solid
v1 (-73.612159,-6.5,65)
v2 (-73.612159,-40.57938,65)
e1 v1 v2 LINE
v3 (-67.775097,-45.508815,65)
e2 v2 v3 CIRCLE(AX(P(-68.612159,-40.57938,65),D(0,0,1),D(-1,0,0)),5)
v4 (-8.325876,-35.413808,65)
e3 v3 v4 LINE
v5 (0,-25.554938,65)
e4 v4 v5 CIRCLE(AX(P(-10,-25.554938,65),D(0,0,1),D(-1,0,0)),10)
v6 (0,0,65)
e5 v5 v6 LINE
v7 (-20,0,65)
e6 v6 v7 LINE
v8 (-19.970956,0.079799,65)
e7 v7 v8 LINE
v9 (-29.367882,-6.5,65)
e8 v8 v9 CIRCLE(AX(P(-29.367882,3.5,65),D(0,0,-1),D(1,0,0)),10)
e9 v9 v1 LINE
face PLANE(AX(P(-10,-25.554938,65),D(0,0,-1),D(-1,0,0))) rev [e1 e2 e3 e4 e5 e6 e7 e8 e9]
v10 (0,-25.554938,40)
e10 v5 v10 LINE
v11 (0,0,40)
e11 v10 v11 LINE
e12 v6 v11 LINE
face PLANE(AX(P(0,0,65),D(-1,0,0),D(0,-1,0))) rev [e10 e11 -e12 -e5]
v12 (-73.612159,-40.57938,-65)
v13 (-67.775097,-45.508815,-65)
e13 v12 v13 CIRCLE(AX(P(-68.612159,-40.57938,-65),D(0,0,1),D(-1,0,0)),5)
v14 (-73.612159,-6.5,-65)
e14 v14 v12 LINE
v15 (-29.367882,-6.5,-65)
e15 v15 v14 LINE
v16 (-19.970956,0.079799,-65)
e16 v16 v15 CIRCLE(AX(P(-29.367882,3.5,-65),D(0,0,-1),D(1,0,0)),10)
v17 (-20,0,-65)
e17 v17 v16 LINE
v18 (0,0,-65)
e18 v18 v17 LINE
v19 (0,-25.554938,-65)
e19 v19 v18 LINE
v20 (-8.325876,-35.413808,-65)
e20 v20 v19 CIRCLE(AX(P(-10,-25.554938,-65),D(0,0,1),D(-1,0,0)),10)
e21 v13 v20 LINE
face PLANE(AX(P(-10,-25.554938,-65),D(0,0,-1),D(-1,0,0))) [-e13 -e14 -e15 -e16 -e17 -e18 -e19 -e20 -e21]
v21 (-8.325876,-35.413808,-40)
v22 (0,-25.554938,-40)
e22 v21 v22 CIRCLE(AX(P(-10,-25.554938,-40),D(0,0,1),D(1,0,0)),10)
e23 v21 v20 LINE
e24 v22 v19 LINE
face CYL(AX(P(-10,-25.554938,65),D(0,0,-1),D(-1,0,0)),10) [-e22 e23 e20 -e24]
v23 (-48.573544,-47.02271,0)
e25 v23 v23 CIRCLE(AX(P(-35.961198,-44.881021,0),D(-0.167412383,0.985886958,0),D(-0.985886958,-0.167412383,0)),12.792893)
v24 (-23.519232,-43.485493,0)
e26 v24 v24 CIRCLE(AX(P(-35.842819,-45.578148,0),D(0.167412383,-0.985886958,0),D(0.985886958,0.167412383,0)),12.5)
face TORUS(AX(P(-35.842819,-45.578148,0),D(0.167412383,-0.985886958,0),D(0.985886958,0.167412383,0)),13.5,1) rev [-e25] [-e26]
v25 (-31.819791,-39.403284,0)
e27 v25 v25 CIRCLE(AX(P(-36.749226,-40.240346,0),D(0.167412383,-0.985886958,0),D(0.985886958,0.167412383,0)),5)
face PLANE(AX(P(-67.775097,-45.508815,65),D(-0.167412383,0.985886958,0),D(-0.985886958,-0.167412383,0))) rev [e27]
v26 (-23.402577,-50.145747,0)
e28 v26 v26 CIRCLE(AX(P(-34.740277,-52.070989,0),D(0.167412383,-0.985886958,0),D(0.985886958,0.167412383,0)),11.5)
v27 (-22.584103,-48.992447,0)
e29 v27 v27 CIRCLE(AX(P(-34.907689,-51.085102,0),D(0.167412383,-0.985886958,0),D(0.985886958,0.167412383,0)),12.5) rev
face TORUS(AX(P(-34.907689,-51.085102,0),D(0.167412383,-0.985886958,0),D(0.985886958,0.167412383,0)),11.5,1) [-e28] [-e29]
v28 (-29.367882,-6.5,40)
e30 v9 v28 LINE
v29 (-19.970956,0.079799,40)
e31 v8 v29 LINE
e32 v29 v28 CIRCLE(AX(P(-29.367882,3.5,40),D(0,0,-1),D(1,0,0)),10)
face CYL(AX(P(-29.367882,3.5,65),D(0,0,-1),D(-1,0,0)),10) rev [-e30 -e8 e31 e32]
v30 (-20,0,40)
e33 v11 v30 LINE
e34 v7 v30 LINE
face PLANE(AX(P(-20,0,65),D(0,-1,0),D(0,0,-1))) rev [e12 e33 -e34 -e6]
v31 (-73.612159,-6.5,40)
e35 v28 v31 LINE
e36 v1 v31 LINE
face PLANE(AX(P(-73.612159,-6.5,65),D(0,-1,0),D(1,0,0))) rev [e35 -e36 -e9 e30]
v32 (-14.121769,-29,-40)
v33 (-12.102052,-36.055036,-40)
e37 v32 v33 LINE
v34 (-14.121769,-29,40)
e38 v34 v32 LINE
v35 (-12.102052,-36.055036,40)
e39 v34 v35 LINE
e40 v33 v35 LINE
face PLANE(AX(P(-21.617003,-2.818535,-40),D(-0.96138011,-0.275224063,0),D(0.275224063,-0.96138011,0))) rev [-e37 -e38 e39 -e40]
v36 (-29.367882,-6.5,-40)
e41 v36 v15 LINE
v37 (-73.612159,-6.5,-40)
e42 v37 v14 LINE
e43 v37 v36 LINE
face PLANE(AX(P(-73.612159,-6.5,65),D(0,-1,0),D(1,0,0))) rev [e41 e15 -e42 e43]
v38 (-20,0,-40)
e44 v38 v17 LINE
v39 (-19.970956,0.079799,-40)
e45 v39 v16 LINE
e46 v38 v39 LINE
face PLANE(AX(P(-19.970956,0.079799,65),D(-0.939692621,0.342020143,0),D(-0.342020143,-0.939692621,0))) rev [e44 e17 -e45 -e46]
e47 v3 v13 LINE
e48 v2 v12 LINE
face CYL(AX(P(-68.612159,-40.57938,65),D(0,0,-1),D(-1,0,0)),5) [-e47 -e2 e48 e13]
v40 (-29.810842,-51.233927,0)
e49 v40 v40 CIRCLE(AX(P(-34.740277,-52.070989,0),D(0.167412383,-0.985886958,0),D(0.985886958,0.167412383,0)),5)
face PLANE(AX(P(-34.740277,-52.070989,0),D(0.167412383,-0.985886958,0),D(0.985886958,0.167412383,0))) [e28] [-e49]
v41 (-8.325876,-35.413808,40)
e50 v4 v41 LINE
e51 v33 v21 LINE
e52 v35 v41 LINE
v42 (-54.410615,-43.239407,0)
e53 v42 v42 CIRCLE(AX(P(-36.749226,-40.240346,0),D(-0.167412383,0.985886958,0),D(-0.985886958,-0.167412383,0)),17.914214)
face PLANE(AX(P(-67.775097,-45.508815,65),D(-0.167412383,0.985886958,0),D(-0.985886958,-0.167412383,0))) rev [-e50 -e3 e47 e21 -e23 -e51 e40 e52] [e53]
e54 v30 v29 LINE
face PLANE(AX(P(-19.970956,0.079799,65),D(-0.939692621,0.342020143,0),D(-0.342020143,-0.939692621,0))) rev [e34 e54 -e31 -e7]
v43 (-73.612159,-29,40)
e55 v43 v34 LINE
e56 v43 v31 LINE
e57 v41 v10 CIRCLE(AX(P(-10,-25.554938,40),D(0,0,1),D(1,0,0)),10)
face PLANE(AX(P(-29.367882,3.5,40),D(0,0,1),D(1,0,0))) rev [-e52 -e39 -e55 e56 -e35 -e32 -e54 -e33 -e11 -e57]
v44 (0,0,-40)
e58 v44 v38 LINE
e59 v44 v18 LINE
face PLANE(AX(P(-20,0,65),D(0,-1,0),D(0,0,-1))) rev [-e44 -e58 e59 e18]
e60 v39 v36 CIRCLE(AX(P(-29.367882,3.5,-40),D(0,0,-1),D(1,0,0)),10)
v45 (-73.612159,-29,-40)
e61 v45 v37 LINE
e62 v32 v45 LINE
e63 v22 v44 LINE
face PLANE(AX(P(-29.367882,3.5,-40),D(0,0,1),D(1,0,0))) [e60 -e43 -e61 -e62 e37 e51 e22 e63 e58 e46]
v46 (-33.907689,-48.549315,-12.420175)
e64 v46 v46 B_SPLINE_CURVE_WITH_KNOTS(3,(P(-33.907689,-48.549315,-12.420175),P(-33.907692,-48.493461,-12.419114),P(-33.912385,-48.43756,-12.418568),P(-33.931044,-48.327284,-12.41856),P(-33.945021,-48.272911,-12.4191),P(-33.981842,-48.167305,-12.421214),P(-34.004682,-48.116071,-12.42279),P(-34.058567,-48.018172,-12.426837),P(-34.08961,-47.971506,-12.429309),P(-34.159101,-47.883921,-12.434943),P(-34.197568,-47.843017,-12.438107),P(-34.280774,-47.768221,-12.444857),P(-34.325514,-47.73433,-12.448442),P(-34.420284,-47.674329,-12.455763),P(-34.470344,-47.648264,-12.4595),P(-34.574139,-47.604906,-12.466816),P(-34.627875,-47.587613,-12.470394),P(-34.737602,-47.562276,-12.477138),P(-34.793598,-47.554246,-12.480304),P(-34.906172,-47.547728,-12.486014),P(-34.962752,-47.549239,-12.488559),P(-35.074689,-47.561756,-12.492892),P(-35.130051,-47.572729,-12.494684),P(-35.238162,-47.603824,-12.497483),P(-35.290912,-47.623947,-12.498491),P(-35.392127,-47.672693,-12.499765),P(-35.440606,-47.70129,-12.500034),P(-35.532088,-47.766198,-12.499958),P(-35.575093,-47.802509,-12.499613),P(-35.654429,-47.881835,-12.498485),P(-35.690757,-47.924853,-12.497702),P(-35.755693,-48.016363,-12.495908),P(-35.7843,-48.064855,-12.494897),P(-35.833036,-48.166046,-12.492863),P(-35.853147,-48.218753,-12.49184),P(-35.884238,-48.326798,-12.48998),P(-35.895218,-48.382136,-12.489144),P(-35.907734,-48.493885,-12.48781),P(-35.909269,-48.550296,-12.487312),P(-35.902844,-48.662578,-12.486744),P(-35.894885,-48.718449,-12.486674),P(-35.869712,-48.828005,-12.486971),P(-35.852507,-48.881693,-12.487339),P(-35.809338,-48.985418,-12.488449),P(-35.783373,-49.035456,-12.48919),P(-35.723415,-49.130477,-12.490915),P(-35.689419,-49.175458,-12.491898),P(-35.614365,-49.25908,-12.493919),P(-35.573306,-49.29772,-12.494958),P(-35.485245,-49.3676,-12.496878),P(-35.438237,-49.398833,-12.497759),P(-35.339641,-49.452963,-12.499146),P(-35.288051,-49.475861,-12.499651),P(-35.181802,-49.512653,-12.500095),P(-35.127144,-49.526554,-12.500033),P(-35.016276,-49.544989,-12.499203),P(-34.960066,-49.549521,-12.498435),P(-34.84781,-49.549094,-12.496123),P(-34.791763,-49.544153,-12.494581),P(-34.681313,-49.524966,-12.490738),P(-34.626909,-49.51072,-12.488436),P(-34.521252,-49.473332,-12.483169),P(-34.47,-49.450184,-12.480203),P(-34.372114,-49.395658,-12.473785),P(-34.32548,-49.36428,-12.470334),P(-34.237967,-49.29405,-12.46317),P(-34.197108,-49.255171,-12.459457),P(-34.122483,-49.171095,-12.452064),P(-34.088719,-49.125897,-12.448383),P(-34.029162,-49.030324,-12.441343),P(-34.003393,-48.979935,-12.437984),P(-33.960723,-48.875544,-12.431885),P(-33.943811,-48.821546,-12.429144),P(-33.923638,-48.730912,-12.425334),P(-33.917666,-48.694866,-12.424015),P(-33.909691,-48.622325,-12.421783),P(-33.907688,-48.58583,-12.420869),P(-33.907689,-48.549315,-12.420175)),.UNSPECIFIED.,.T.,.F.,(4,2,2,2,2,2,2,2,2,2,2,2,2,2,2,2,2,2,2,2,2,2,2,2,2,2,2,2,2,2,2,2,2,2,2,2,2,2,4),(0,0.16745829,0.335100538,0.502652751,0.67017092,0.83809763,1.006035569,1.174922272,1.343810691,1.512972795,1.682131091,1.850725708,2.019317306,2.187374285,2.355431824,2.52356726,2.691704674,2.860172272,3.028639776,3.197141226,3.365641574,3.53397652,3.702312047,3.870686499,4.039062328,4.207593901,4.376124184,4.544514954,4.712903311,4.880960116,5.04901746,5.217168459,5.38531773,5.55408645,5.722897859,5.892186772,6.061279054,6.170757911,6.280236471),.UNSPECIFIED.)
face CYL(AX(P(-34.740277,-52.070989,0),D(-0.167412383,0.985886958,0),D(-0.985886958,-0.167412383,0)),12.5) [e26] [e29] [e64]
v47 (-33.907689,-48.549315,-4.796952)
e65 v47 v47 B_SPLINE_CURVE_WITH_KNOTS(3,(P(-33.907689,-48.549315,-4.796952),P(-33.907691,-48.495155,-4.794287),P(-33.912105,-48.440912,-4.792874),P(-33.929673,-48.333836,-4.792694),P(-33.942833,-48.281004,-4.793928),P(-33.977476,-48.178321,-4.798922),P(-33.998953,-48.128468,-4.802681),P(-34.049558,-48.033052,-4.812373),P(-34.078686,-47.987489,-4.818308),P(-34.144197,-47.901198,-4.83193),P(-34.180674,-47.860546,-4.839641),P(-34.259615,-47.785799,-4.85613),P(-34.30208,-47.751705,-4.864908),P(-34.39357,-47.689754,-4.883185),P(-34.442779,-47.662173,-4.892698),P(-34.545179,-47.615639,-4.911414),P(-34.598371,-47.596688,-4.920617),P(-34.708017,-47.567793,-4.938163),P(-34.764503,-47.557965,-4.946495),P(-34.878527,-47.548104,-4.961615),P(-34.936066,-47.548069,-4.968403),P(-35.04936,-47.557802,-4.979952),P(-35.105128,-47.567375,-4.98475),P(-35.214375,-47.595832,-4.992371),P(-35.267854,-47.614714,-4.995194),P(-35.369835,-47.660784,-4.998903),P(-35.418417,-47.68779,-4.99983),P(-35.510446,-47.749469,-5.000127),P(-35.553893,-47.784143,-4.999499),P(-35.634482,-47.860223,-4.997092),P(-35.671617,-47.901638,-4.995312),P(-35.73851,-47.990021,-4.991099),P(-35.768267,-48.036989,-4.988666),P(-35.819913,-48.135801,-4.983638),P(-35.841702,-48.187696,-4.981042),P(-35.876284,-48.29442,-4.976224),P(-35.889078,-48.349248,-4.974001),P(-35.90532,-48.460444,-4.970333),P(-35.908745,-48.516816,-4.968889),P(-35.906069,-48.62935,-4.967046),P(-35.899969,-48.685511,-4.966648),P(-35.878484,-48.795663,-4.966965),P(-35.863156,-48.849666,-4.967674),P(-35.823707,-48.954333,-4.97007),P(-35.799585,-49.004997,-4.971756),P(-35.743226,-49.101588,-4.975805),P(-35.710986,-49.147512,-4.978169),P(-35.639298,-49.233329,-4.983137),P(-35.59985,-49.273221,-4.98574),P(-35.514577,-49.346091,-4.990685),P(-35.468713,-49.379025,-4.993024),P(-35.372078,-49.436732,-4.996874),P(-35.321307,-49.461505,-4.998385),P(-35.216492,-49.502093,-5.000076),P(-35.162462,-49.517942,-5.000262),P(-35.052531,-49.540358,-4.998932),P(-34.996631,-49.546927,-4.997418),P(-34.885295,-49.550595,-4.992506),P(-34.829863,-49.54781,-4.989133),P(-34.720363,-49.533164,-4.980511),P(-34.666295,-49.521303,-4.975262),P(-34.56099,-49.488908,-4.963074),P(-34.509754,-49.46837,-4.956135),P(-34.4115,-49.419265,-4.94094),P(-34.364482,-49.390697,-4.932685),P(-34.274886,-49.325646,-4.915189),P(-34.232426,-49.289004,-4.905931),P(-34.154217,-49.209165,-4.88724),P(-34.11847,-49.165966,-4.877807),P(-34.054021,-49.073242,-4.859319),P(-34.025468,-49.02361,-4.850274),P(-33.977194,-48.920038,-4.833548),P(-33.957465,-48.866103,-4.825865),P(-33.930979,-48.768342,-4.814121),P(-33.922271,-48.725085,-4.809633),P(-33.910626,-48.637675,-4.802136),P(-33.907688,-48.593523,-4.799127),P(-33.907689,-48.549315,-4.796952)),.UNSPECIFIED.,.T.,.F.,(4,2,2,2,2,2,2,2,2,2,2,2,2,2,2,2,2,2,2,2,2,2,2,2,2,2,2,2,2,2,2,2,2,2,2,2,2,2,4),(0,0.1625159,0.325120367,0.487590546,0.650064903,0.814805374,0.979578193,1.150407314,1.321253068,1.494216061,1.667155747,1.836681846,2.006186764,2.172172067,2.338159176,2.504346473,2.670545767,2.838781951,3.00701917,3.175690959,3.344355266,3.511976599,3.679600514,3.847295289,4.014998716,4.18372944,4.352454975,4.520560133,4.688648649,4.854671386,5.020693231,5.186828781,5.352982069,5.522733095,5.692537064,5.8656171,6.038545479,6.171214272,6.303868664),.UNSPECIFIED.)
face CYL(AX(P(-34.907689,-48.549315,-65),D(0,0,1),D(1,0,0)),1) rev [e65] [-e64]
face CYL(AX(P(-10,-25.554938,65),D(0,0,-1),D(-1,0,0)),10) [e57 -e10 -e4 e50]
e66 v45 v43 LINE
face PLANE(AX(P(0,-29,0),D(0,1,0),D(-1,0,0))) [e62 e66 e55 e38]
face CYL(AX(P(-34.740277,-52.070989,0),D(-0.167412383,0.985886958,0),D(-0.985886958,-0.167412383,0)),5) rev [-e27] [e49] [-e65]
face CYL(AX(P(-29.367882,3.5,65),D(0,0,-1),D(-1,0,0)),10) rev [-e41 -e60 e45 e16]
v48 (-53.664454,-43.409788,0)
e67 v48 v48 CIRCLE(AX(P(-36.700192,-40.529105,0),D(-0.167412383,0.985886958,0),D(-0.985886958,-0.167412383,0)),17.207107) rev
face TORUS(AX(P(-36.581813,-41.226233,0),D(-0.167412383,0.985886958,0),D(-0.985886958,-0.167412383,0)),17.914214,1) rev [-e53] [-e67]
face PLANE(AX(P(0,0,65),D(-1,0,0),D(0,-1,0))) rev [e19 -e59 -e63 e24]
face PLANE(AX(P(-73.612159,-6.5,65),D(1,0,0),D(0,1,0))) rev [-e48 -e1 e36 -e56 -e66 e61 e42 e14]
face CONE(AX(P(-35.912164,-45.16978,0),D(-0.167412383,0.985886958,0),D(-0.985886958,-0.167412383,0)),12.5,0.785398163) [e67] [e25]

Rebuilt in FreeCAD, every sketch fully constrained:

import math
import FreeCAD as App
import Part
import Sketcher

V = App.Vector
Q = App.Units.Quantity


def edges_at(feature, points):
    """Names of the edges that pass closest to the given points."""
    edges = feature.Shape.Edges
    near = lambda p: min(range(len(edges)), key=lambda i: edges[i].distToShape(Part.Vertex(*p))[0])
    return sorted({f"Edge{near(p) + 1}" for p in points})

doc = App.newDocument("Part")
body = doc.addObject("PartDesign::Body", "Body")

# Sketch on XY plane
sketch1 = doc.addObject("Sketcher::SketchObject", "Sketch")
body.addObject(sketch1)
sketch1.AttachmentSupport = (doc.XY_Plane, [""])
sketch1.MapMode = "FlatFace"
sketch1.addGeometry(Part.LineSegment(V(0, -25.55, 0), V(0, 0, 0)), False)
sketch1.addGeometry(Part.LineSegment(V(0, 0, 0), V(-20, 0, 0)), False)
sketch1.addGeometry(Part.LineSegment(V(-20, 0, 0), V(-19.97, 0.08, 0)), False)
sketch1.addGeometry(Part.ArcOfCircle(Part.Circle(V(-29.37, 3.5, 0), V(0, 0, 1), 10), math.radians(-90), math.radians(-20)), False)
sketch1.addGeometry(Part.LineSegment(V(-29.37, -6.5, 0), V(-73.61, -6.5, 0)), False)
sketch1.addGeometry(Part.LineSegment(V(-73.61, -6.5, 0), V(-73.61, -40.58, 0)), False)
sketch1.addGeometry(Part.ArcOfCircle(Part.Circle(V(-68.61, -40.58, 0), V(0, 0, 1), 5), math.radians(-180), math.radians(-80)), False)
sketch1.addGeometry(Part.LineSegment(V(-67.78, -45.51, 0), V(-8.33, -35.41, 0)), False)
sketch1.addGeometry(Part.ArcOfCircle(Part.Circle(V(-10, -25.55, 0), V(0, 0, 1), 10), math.radians(-80), math.radians(0)), False)
sketch1.addConstraint(Sketcher.Constraint("Coincident", 0, 2, 1, 1))
sketch1.addConstraint(Sketcher.Constraint("Coincident", 1, 2, 2, 1))
sketch1.addConstraint(Sketcher.Constraint("Tangent", 2, 2, 3, 2))
sketch1.addConstraint(Sketcher.Constraint("Tangent", 3, 1, 4, 1))
sketch1.addConstraint(Sketcher.Constraint("Coincident", 4, 2, 5, 1))
sketch1.addConstraint(Sketcher.Constraint("Tangent", 5, 2, 6, 1))
sketch1.addConstraint(Sketcher.Constraint("Tangent", 6, 2, 7, 1))
sketch1.addConstraint(Sketcher.Constraint("Tangent", 7, 2, 8, 1))
sketch1.addConstraint(Sketcher.Constraint("Tangent", 8, 2, 0, 1))
sketch1.addConstraint(Sketcher.Constraint("Vertical", 0))
sketch1.addConstraint(Sketcher.Constraint("Horizontal", 1))
sketch1.addConstraint(Sketcher.Constraint("Horizontal", 4))
sketch1.addConstraint(Sketcher.Constraint("Vertical", 5))
sketch1.addConstraint(Sketcher.Constraint("Coincident", 0, 2, -1, 1))
sketch1.addConstraint(Sketcher.Constraint("Equal", 3, 8))
sketch1.addConstraint(Sketcher.Constraint("Radius", 3, Q("10 mm")))
sketch1.addConstraint(Sketcher.Constraint("Radius", 6, Q("5 mm")))
sketch1.addConstraint(Sketcher.Constraint("DistanceX", 1, 2, 1, 1, Q("20 mm")))
sketch1.addConstraint(Sketcher.Constraint("Angle", 2, Q("70 deg")))
sketch1.addConstraint(Sketcher.Constraint("DistanceY", -1, 1, 3, 3, Q("3.5 mm")))
sketch1.addConstraint(Sketcher.Constraint("DistanceY", 0, 1, 0, 2, Q("25.554938 mm")))
sketch1.addConstraint(Sketcher.Constraint("DistanceY", 5, 2, 5, 1, Q("34.07938 mm")))
sketch1.addConstraint(Sketcher.Constraint("Distance", 7, Q("60.300241 mm")))
pad1 = doc.addObject("PartDesign::Pad", "Pad")
body.addObject(pad1)
pad1.Profile = sketch1
pad1.Length = 130
pad1.Midplane = True

# Sketch on XY plane
sketch2 = doc.addObject("Sketcher::SketchObject", "Sketch001")
body.addObject(sketch2)
sketch2.AttachmentSupport = (doc.XY_Plane, [""])
sketch2.MapMode = "FlatFace"
sketch2.addGeometry(Part.LineSegment(V(-20, 0, 0), V(-19.97, 0.08, 0)), False)
sketch2.addGeometry(Part.ArcOfCircle(Part.Circle(V(-29.37, 3.5, 0), V(0, 0, 1), 10), math.radians(-39.19), math.radians(-20)), False)
sketch2.addGeometry(Part.LineSegment(V(-21.62, -2.82, 0), V(-12.1, -36.06, 0)), False)
sketch2.addGeometry(Part.LineSegment(V(-12.1, -36.06, 0), V(-8.33, -35.41, 0)), False)
sketch2.addGeometry(Part.ArcOfCircle(Part.Circle(V(-10, -25.55, 0), V(0, 0, 1), 10), math.radians(-80), math.radians(0)), False)
sketch2.addGeometry(Part.LineSegment(V(0, -25.55, 0), V(0, 0, 0)), False)
sketch2.addGeometry(Part.LineSegment(V(0, 0, 0), V(-20, 0, 0)), False)
sketch2.addConstraint(Sketcher.Constraint("Tangent", 0, 2, 1, 2))
sketch2.addConstraint(Sketcher.Constraint("Coincident", 1, 1, 2, 1))
sketch2.addConstraint(Sketcher.Constraint("Coincident", 2, 2, 3, 1))
sketch2.addConstraint(Sketcher.Constraint("Tangent", 3, 2, 4, 1))
sketch2.addConstraint(Sketcher.Constraint("Tangent", 4, 2, 5, 1))
sketch2.addConstraint(Sketcher.Constraint("Coincident", 5, 2, 6, 1))
sketch2.addConstraint(Sketcher.Constraint("Coincident", 6, 2, 0, 1))
sketch2.addConstraint(Sketcher.Constraint("Vertical", 5))
sketch2.addConstraint(Sketcher.Constraint("Horizontal", 6))
sketch2.addConstraint(Sketcher.Constraint("Coincident", 5, 2, -1, 1))
sketch2.addConstraint(Sketcher.Constraint("Equal", 1, 4))
sketch2.addConstraint(Sketcher.Constraint("Radius", 1, Q("10 mm")))
sketch2.addConstraint(Sketcher.Constraint("DistanceX", 6, 2, 6, 1, Q("20 mm")))
sketch2.addConstraint(Sketcher.Constraint("Angle", 0, Q("70 deg")))
sketch2.addConstraint(Sketcher.Constraint("DistanceY", -1, 1, 1, 3, Q("3.5 mm")))
sketch2.addConstraint(Sketcher.Constraint("DistanceY", 5, 1, 5, 2, Q("25.554938 mm")))
sketch2.addConstraint(Sketcher.Constraint("DistanceY", 2, 2, 1, 1, Q("33.236502 mm")))
sketch2.addConstraint(Sketcher.Constraint("Distance", 3, Q("3.830232 mm")))
sketch2.addConstraint(Sketcher.Constraint("DistanceX", 2, 2, -1, 1, Q("12.102052 mm")))
pocket1 = doc.addObject("PartDesign::Pocket", "Pocket")
body.addObject(pocket1)
pocket1.Profile = sketch2
pocket1.Length = 80
pocket1.Midplane = True

# Sketch on XZ plane
sketch3 = doc.addObject("Sketcher::SketchObject", "Sketch002")
body.addObject(sketch3)
sketch3.AttachmentSupport = (doc.XZ_Plane, [""])
sketch3.MapMode = "FlatFace"
sketch3.AttachmentOffset = App.Placement(V(0, 0, 6.5), App.Rotation())
sketch3.addGeometry(Part.LineSegment(V(0, -40, 0), V(-74, -40, 0)), False)
sketch3.addGeometry(Part.LineSegment(V(-74, -40, 0), V(-74, 40, 0)), False)
sketch3.addGeometry(Part.LineSegment(V(-74, 40, 0), V(0, 40, 0)), False)
sketch3.addGeometry(Part.LineSegment(V(0, 40, 0), V(0, -40, 0)), False)
sketch3.addConstraint(Sketcher.Constraint("Coincident", 0, 2, 1, 1))
sketch3.addConstraint(Sketcher.Constraint("Coincident", 1, 2, 2, 1))
sketch3.addConstraint(Sketcher.Constraint("Coincident", 2, 2, 3, 1))
sketch3.addConstraint(Sketcher.Constraint("Coincident", 3, 2, 0, 1))
sketch3.addConstraint(Sketcher.Constraint("Horizontal", 0))
sketch3.addConstraint(Sketcher.Constraint("Vertical", 1))
sketch3.addConstraint(Sketcher.Constraint("Horizontal", 2))
sketch3.addConstraint(Sketcher.Constraint("Vertical", 3))
sketch3.addConstraint(Sketcher.Constraint("Symmetric", 2, 2, 3, 2, -1, 1))
sketch3.addConstraint(Sketcher.Constraint("DistanceY", 1, 1, 1, 2, Q("80 mm")))
sketch3.addConstraint(Sketcher.Constraint("DistanceX", 0, 2, 0, 1, Q("73.612159 mm")))
pocket2 = doc.addObject("PartDesign::Pocket", "Pocket001")
body.addObject(pocket2)
pocket2.Profile = sketch3
pocket2.Length = 45
pocket2.Midplane = True

# Sketch on an angled plane
sketch4 = doc.addObject("Sketcher::SketchObject", "Sketch003")
body.addObject(sketch4)
sketch4.Placement = App.Placement(V(5.611689, -33.047085, 0), App.Rotation(V(0.985886958, 0.167412383, 0), V(0, 0, 1), V(0.167412383, -0.985886958, 0), "ZXY"))
sketch4.addGeometry(Part.Circle(V(-43, 0, 0), V(0, 0, 1), 12), False)
sketch4.addGeometry(Part.Circle(V(-43, 0, 0), V(0, 0, 1), 5), False)
sketch4.addConstraint(Sketcher.Constraint("Coincident", 1, 3, 0, 3))
sketch4.addConstraint(Sketcher.Constraint("PointOnObject", 0, 3, -1))
sketch4.addConstraint(Sketcher.Constraint("Diameter", 0, Q("25 mm")))
sketch4.addConstraint(Sketcher.Constraint("Diameter", 1, Q("10 mm")))
sketch4.addConstraint(Sketcher.Constraint("DistanceX", 0, 3, -1, 1, Q("42.967314 mm")))
pad2 = doc.addObject("PartDesign::Pad", "Pad001")
body.addObject(pad2)
pad2.Profile = sketch4
pad2.Length = 12
doc.recompute()

chamfer = doc.addObject("PartDesign::Chamfer", "Chamfer")
body.addObject(chamfer)
chamfer.Base = (pad2, edges_at(pad2, [(-49.073, -42.333, 0)]))
chamfer.Size = 5
doc.recompute()

fillet = doc.addObject("PartDesign::Fillet", "Fillet")
body.addObject(fillet)
fillet.Base = (chamfer, edges_at(chamfer, [(-54.002, -43.17, 0), (-47.064, -54.164, 0), (-48.236, -47.262, 0)]))
fillet.Radius = 1

# Sketch on XY plane
sketch5 = doc.addObject("Sketcher::SketchObject", "Sketch004")
body.addObject(sketch5)
sketch5.AttachmentSupport = (doc.XY_Plane, [""])
sketch5.MapMode = "FlatFace"
sketch5.addGeometry(Part.Circle(V(-34.9, -48.5, 0), V(0, 0, 1), 1), False)
sketch5.addConstraint(Sketcher.Constraint("Diameter", 0, Q("2 mm")))
sketch5.addConstraint(Sketcher.Constraint("DistanceX", 0, 3, -1, 1, Q("34.907689 mm")))
sketch5.addConstraint(Sketcher.Constraint("DistanceY", 0, 3, -1, 1, Q("48.549315 mm")))
pocket3 = doc.addObject("PartDesign::Pocket", "Pocket002")
body.addObject(pocket3)
pocket3.Profile = sketch5
pocket3.Type = "ThroughAll"

doc.recompute()
